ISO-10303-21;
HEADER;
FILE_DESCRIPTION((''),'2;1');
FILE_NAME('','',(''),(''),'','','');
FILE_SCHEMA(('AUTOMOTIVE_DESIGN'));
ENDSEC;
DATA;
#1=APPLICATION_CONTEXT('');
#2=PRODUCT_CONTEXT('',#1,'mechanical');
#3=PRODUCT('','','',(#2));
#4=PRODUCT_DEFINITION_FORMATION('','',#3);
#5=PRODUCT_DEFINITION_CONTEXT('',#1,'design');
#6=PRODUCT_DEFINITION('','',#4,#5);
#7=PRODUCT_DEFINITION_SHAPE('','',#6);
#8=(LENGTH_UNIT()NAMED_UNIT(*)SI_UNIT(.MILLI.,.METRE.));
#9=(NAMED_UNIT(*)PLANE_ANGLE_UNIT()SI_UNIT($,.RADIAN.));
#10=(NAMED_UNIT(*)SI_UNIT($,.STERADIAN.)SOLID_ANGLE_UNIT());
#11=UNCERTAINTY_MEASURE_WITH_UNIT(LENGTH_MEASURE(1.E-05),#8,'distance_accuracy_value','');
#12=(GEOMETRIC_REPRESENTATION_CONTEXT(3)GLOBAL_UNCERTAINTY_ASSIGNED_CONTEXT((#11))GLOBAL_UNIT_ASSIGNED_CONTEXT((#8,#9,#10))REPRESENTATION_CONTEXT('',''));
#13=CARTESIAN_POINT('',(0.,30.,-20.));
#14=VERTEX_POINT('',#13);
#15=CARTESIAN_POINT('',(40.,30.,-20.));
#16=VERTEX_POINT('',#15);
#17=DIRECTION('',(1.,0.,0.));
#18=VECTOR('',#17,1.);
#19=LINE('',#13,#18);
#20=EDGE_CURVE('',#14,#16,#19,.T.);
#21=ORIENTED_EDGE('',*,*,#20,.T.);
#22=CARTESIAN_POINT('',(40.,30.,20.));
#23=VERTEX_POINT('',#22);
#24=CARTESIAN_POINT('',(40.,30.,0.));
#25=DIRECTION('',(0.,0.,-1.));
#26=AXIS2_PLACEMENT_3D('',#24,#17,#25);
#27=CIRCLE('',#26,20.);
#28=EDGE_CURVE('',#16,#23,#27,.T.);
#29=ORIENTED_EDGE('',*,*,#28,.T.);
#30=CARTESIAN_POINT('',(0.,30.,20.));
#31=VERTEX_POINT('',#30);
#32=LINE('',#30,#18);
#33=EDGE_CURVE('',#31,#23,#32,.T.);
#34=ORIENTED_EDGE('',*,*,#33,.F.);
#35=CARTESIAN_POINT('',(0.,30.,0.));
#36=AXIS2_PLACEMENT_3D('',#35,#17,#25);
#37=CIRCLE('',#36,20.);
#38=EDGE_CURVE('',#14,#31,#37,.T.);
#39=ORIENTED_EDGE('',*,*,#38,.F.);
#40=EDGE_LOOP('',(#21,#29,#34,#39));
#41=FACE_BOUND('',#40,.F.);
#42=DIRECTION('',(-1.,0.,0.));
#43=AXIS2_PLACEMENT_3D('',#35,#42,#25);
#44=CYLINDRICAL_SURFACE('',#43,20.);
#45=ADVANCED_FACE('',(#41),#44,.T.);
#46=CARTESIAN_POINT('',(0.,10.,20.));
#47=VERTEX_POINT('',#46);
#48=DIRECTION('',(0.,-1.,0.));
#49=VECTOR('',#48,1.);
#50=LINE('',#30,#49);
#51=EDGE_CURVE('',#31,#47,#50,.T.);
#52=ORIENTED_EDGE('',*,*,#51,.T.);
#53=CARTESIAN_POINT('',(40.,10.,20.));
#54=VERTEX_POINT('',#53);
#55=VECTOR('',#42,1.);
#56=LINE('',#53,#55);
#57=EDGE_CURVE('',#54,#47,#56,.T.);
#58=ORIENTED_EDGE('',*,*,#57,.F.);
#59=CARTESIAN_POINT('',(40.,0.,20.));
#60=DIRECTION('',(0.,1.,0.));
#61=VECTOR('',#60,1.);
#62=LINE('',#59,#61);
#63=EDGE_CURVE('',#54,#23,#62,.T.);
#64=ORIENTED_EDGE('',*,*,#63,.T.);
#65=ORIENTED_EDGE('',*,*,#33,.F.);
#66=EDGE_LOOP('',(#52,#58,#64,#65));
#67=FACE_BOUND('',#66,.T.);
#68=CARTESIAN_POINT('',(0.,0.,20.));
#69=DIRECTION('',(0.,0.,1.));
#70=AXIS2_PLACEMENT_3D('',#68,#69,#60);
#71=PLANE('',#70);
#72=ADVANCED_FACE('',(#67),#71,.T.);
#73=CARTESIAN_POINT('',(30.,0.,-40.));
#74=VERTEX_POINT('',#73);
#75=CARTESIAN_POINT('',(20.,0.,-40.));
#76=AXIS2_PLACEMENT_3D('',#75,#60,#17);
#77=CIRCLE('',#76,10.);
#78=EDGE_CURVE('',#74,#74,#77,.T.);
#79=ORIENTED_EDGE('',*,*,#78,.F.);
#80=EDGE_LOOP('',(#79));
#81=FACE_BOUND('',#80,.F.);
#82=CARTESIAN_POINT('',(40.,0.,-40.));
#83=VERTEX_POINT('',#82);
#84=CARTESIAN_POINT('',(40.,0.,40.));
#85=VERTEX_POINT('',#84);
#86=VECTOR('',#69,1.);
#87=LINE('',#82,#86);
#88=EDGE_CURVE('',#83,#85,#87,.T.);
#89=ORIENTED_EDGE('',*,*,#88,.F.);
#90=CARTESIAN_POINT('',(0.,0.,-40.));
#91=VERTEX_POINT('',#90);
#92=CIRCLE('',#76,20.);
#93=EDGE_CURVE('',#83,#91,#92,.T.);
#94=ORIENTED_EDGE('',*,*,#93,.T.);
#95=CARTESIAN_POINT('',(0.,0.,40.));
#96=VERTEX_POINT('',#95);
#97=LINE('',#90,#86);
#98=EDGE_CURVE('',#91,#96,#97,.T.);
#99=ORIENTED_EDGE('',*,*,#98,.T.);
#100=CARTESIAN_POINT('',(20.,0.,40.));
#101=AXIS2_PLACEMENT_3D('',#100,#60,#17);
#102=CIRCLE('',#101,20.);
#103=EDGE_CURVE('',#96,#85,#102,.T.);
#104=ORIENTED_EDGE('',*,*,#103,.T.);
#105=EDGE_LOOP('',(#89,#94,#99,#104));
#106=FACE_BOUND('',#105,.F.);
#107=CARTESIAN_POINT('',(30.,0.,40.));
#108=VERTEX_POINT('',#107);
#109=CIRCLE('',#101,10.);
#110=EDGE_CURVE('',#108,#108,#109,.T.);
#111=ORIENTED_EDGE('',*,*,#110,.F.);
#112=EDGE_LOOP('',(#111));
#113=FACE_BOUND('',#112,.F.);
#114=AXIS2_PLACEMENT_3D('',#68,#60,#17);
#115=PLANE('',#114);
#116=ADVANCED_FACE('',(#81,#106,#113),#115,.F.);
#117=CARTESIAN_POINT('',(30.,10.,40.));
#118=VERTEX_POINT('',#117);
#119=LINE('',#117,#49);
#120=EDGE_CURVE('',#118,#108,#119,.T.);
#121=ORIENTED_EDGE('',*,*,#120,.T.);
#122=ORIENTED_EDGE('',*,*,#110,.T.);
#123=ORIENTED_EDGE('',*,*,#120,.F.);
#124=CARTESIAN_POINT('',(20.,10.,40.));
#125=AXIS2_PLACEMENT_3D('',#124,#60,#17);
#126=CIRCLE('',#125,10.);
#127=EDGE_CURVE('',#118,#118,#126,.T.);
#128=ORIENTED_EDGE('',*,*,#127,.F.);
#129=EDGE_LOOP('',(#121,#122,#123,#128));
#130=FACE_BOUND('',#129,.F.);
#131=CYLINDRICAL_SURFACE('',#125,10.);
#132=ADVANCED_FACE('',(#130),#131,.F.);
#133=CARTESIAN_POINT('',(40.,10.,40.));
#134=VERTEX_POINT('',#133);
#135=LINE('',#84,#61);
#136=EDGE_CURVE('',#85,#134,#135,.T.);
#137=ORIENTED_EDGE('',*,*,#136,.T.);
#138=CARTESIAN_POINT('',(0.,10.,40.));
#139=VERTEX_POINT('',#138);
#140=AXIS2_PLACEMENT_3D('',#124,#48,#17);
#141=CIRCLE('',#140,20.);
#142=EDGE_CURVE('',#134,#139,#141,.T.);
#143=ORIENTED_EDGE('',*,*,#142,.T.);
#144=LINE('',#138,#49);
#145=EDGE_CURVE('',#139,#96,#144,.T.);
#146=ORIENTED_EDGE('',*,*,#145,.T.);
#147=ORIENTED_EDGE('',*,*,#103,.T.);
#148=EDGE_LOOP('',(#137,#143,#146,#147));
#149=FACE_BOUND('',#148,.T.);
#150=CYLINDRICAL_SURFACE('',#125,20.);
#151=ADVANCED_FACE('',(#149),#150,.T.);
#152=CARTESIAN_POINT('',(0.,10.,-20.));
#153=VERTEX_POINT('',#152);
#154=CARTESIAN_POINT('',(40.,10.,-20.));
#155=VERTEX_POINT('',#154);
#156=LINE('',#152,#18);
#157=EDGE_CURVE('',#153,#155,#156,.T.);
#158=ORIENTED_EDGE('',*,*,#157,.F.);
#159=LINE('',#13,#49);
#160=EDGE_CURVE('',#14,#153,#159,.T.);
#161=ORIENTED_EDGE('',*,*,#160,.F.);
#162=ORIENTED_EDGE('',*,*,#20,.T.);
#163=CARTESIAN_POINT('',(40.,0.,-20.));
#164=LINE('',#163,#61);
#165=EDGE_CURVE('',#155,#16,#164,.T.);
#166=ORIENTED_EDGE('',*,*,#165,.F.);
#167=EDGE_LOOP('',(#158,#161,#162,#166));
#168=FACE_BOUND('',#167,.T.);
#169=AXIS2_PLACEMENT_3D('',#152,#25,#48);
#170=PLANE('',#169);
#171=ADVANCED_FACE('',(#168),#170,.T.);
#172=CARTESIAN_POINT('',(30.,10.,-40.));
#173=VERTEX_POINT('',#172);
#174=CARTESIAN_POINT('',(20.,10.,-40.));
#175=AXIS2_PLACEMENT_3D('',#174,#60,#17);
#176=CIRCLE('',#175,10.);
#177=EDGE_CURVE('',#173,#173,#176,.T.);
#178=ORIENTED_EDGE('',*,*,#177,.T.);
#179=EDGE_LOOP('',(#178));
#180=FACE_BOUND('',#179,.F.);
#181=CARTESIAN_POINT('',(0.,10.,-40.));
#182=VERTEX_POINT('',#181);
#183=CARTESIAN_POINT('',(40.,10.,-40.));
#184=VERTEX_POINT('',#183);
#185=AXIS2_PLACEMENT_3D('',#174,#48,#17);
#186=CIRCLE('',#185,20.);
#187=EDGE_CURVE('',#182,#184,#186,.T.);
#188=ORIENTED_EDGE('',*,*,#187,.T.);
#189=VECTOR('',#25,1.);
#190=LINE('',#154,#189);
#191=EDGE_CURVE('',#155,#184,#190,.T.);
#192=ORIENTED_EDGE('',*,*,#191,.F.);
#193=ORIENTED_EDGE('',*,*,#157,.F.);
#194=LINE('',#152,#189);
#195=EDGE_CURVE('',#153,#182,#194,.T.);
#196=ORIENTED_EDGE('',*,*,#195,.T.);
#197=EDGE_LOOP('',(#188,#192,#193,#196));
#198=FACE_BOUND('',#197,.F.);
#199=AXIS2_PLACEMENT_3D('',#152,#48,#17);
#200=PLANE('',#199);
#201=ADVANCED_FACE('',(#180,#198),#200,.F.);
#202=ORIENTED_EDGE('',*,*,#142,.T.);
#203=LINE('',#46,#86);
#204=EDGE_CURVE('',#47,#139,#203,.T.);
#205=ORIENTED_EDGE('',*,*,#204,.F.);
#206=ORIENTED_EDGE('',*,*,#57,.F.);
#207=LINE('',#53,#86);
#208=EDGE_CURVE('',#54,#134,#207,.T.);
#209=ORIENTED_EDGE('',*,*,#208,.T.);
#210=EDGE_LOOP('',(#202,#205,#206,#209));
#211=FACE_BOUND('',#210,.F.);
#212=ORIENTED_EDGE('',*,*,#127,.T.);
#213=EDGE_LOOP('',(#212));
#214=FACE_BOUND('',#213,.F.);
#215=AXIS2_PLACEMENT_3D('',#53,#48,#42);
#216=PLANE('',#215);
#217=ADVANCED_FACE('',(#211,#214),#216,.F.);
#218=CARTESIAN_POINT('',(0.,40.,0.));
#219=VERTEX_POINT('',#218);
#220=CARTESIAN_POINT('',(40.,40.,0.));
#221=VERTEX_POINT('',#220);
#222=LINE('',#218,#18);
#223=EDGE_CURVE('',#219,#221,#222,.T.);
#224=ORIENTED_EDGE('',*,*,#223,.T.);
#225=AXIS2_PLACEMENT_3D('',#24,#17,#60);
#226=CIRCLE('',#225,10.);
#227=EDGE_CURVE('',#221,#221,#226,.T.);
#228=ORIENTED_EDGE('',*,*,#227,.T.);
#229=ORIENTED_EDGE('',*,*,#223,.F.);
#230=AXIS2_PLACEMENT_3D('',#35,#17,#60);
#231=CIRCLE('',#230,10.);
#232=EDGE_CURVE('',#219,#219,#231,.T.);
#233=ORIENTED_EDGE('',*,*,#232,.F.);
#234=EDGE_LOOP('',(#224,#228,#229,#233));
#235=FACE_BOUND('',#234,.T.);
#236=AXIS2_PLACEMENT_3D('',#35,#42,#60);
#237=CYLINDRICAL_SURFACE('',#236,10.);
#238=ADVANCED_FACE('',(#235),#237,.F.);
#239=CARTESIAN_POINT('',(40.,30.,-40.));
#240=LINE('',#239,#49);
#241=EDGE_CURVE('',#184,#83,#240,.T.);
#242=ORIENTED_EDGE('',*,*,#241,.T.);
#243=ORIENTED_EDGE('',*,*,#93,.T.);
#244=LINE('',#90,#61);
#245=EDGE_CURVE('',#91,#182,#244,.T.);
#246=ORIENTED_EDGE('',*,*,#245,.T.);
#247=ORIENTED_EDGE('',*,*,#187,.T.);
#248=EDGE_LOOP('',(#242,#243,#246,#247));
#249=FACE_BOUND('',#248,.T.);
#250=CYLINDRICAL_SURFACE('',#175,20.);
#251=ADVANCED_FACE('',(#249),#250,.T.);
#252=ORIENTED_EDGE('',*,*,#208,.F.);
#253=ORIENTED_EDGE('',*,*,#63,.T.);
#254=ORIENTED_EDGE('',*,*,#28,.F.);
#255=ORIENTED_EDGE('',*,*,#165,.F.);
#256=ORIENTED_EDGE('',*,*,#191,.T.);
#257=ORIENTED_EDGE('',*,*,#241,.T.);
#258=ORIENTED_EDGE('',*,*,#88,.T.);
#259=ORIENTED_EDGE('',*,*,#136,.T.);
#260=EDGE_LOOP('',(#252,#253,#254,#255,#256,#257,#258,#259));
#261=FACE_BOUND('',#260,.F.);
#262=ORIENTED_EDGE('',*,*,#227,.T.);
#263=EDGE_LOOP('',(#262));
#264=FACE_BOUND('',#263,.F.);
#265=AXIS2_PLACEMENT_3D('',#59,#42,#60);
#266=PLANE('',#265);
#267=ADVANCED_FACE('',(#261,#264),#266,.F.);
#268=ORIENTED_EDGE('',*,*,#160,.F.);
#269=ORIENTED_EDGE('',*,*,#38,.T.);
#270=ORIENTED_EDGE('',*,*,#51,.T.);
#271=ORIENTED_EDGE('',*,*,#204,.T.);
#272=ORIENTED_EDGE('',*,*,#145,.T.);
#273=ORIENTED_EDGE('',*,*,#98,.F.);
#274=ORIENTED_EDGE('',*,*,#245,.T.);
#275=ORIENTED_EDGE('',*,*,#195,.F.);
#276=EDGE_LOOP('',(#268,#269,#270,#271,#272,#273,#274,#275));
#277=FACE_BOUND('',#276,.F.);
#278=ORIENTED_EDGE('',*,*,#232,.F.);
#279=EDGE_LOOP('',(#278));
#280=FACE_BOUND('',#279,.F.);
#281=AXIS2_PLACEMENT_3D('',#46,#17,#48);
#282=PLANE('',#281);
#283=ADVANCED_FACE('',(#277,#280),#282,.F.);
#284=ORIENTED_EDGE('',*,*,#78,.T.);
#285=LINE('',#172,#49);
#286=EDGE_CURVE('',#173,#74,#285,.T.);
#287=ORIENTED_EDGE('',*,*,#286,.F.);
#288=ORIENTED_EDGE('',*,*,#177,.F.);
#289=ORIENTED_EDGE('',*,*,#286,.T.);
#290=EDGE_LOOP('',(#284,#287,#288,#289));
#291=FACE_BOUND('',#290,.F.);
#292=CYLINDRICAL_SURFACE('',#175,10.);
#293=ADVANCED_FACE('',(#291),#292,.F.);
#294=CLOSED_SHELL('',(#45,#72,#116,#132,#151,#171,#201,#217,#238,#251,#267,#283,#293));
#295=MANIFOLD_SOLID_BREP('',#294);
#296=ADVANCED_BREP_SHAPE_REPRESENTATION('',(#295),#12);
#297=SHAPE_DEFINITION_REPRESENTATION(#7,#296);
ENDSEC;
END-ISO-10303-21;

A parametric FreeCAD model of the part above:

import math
import FreeCAD as App
import Part
import Sketcher


def add_polygon(sketch, points):
    """Adds a closed chain of lines whose ends are joined by coincident constraints."""
    first, n = sketch.GeometryCount, len(points)
    for a, b in zip(points, points[1:] + points[:1]):
        sketch.addGeometry(Part.LineSegment(App.Vector(*a, 0), App.Vector(*b, 0)), False)
    for i in range(n):
        sketch.addConstraint(Sketcher.Constraint("Coincident", first + i, 2, first + (i + 1) % n, 1))

doc = App.newDocument("Part")
body = doc.addObject("PartDesign::Body", "Body")

# Sketch on YZ plane
sketch1 = doc.addObject("Sketcher::SketchObject", "Sketch")
body.addObject(sketch1)
sketch1.AttachmentSupport = (doc.YZ_Plane, [""])
sketch1.MapMode = "FlatFace"
sketch1.addGeometry([
    Part.LineSegment(App.Vector(0, 20, 0), App.Vector(0, -20, 0)),  # 0
    Part.LineSegment(App.Vector(0, -20, 0), App.Vector(30, -20, 0)),  # 1
    Part.ArcOfCircle(Part.Circle(App.Vector(30, 0, 0), App.Vector(0, 0, 1), 20), math.radians(-90), math.radians(90)),  # 2
    Part.LineSegment(App.Vector(30, 20, 0), App.Vector(0, 20, 0)),  # 3
    Part.Circle(App.Vector(30, 0, 0), App.Vector(0, 0, 1), 10),  # 4
], False)
sketch1.addConstraint([
    Sketcher.Constraint("Coincident", 0, 2, 1, 1),
    Sketcher.Constraint("Tangent", 1, 2, 2, 1),
    Sketcher.Constraint("Tangent", 2, 2, 3, 1),
    Sketcher.Constraint("Coincident", 3, 2, 0, 1),
    Sketcher.Constraint("Vertical", 0),
    Sketcher.Constraint("Horizontal", 1),
    Sketcher.Constraint("Horizontal", 3),
    Sketcher.Constraint("Coincident", 4, 3, 2, 3),
    Sketcher.Constraint("Symmetric", 0, 2, 3, 2, -1, 1),
    Sketcher.Constraint("Diameter", 4, 20.0),
    Sketcher.Constraint("Radius", 2, 20.0),
    Sketcher.Constraint("DistanceX", 1, 1, 1, 2, 30.0),
])
pad1 = doc.addObject("PartDesign::Pad", "Pad")
body.addObject(pad1)
pad1.Profile = sketch1
pad1.Length = 40

# Sketch on XY plane
sketch2 = doc.addObject("Sketcher::SketchObject", "Sketch001")
body.addObject(sketch2)
sketch2.AttachmentSupport = (doc.XY_Plane, [""])
sketch2.MapMode = "FlatFace"
sketch2.AttachmentOffset = App.Placement(App.Vector(0, 0, -20), App.Rotation())
add_polygon(sketch2, [(0, 10), (40, 10), (40, 0), (0, 0)])  # lines 0-3
sketch2.addConstraint([
    Sketcher.Constraint("Horizontal", 0),
    Sketcher.Constraint("Vertical", 1),
    Sketcher.Constraint("Horizontal", 2),
    Sketcher.Constraint("Vertical", 3),
    Sketcher.Constraint("Coincident", 2, 2, -1, 1),
    Sketcher.Constraint("DistanceY", 1, 2, 1, 1, 10.0),
    Sketcher.Constraint("DistanceX", 0, 1, 0, 2, 40.0),
])
pad2 = doc.addObject("PartDesign::Pad", "Pad001")
body.addObject(pad2)
pad2.Profile = sketch2
pad2.Length = 20
pad2.Reversed = True

# Sketch on XY plane
sketch3 = doc.addObject("Sketcher::SketchObject", "Sketch002")
body.addObject(sketch3)
sketch3.AttachmentSupport = (doc.XY_Plane, [""])
sketch3.MapMode = "FlatFace"
sketch3.AttachmentOffset = App.Placement(App.Vector(0, 0, 20), App.Rotation())
add_polygon(sketch3, [(0, 10), (0, 0), (40, 0), (40, 10)])  # lines 0-3
sketch3.addConstraint([
    Sketcher.Constraint("Vertical", 0),
    Sketcher.Constraint("Horizontal", 1),
    Sketcher.Constraint("Vertical", 2),
    Sketcher.Constraint("Horizontal", 3),
    Sketcher.Constraint("Coincident", 0, 2, -1, 1),
    Sketcher.Constraint("DistanceY", 0, 2, 0, 1, 10.0),
    Sketcher.Constraint("DistanceX", 1, 1, 1, 2, 40.0),
])
pad3 = doc.addObject("PartDesign::Pad", "Pad002")
body.addObject(pad3)
pad3.Profile = sketch3
pad3.Length = 20

# Sketch on XZ plane
sketch4 = doc.addObject("Sketcher::SketchObject", "Sketch003")
body.addObject(sketch4)
sketch4.AttachmentSupport = (doc.XZ_Plane, [""])
sketch4.MapMode = "FlatFace"
sketch4.AttachmentOffset = App.Placement(App.Vector(0, 0, -10), App.Rotation())
sketch4.addGeometry(Part.Circle(App.Vector(20, 40, 0), App.Vector(0, 0, 1), 20), False)
sketch4.addConstraint([
    Sketcher.Constraint("Diameter", 0, 40.0),
    Sketcher.Constraint("DistanceX", -1, 1, 0, 3, 20.0),
    Sketcher.Constraint("DistanceY", -1, 1, 0, 3, 40.0),
])
pad4 = doc.addObject("PartDesign::Pad", "Pad003")
body.addObject(pad4)
pad4.Profile = sketch4
pad4.Length = 10

# Sketch on XZ plane
sketch5 = doc.addObject("Sketcher::SketchObject", "Sketch004")
body.addObject(sketch5)
sketch5.AttachmentSupport = (doc.XZ_Plane, [""])
sketch5.MapMode = "FlatFace"
sketch5.AttachmentOffset = App.Placement(App.Vector(0, 0, -10), App.Rotation())
sketch5.addGeometry(Part.Circle(App.Vector(20, 40, 0), App.Vector(0, 0, 1), 10), False)
sketch5.addConstraint([
    Sketcher.Constraint("Diameter", 0, 20.0),
    Sketcher.Constraint("DistanceX", -1, 1, 0, 3, 20.0),
    Sketcher.Constraint("DistanceY", -1, 1, 0, 3, 40.0),
])
pocket1 = doc.addObject("PartDesign::Pocket", "Pocket")
body.addObject(pocket1)
pocket1.Profile = sketch5
pocket1.Length = 10
pocket1.Reversed = True

# Sketch on XZ plane
sketch6 = doc.addObject("Sketcher::SketchObject", "Sketch005")
body.addObject(sketch6)
sketch6.AttachmentSupport = (doc.XZ_Plane, [""])
sketch6.MapMode = "FlatFace"
sketch6.AttachmentOffset = App.Placement(App.Vector(0, 0, -10), App.Rotation())
sketch6.addGeometry(Part.Circle(App.Vector(20, -40, 0), App.Vector(0, 0, 1), 20), False)
sketch6.addConstraint([
    Sketcher.Constraint("Diameter", 0, 40.0),
    Sketcher.Constraint("DistanceX", -1, 1, 0, 3, 20.0),
    Sketcher.Constraint("DistanceY", 0, 3, -1, 1, 40.0),
])
pad5 = doc.addObject("PartDesign::Pad", "Pad004")
body.addObject(pad5)
pad5.Profile = sketch6
pad5.Length = 10

# Sketch on XZ plane
sketch7 = doc.addObject("Sketcher::SketchObject", "Sketch006")
body.addObject(sketch7)
sketch7.AttachmentSupport = (doc.XZ_Plane, [""])
sketch7.MapMode = "FlatFace"
sketch7.AttachmentOffset = App.Placement(App.Vector(0, 0, -10), App.Rotation())
sketch7.addGeometry(Part.Circle(App.Vector(20, -40, 0), App.Vector(0, 0, 1), 10), False)
sketch7.addConstraint([
    Sketcher.Constraint("Diameter", 0, 20.0),
    Sketcher.Constraint("DistanceX", -1, 1, 0, 3, 20.0),
    Sketcher.Constraint("DistanceY", 0, 3, -1, 1, 40.0),
])
pocket2 = doc.addObject("PartDesign::Pocket", "Pocket001")
body.addObject(pocket2)
pocket2.Profile = sketch7
pocket2.Length = 10
pocket2.Reversed = True

doc.recompute()
